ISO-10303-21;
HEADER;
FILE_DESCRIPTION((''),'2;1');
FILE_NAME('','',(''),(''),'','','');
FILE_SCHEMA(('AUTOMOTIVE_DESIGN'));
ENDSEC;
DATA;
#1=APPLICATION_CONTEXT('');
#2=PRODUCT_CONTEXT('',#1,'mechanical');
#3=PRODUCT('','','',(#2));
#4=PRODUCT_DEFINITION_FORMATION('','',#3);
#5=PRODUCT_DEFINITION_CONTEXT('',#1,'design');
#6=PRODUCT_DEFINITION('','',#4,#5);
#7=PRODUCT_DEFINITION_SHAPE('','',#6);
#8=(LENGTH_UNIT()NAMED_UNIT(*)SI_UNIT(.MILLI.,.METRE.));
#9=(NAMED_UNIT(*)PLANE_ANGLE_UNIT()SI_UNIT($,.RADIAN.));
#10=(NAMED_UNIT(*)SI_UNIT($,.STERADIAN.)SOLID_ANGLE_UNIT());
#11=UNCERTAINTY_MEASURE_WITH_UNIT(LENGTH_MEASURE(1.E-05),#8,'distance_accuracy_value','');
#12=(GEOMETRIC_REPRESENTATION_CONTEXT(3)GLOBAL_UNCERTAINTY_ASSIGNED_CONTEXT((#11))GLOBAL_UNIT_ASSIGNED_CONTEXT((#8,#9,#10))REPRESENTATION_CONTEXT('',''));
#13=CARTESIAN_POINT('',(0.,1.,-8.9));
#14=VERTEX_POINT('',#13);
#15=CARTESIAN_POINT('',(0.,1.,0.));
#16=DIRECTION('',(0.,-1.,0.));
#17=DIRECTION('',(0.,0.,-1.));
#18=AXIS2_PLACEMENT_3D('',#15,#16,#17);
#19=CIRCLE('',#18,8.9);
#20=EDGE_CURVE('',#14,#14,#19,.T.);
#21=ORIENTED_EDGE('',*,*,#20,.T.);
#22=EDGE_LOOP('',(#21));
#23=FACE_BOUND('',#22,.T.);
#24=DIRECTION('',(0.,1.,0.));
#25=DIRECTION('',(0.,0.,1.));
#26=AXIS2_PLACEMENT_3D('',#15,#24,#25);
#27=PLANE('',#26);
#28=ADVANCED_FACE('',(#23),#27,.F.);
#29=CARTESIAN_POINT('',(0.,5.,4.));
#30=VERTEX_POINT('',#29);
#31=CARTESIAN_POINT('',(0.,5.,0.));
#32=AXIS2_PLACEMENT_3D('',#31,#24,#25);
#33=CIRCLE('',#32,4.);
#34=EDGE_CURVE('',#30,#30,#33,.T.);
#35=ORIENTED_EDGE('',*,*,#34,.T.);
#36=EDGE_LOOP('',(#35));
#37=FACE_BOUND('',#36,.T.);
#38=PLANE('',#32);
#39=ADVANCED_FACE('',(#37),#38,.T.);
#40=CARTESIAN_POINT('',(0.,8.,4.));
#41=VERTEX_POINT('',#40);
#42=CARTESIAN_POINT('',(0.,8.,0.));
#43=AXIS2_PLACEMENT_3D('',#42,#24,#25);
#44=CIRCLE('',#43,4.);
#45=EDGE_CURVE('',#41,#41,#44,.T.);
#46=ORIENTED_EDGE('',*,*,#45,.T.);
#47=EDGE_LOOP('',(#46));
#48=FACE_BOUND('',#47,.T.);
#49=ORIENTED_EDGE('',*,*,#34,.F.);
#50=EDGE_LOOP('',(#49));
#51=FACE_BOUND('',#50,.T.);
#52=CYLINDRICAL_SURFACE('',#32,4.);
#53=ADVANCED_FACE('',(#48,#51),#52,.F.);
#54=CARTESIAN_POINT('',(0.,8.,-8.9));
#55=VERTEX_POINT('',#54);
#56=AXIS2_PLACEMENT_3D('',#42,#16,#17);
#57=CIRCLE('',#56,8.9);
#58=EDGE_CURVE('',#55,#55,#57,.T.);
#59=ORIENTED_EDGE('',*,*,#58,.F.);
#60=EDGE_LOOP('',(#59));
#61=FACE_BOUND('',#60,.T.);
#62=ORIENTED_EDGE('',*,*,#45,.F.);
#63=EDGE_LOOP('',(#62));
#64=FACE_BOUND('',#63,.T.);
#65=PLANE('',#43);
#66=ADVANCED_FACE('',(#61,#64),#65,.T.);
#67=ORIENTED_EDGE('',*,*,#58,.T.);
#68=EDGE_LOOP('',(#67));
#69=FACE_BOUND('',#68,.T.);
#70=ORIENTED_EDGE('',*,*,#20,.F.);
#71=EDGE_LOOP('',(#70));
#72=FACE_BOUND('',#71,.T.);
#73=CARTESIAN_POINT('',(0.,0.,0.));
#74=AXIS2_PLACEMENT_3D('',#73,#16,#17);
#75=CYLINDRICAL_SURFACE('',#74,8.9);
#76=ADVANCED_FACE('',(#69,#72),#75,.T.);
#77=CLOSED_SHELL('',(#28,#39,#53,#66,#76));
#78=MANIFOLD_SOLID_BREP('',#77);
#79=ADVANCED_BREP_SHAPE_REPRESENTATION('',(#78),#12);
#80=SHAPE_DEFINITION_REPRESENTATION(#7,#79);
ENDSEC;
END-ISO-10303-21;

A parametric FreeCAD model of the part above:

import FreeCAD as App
import Part
import Sketcher
Q = App.Units.Quantity

doc = App.newDocument("Part")
params = doc.addObject("Spreadsheet::Sheet", "Params")
for row, (alias, value) in enumerate([
    ("sketch1_height", "7 mm"),
    ("sketch1_width", "8.9 mm"),
    ("revolution_angle", "360 deg"),
    ("sketch2_diameter", "8 mm"),
    ("pocket1_length", "3 mm"),
], start=1):
    params.set(f"A{row}", alias)
    params.set(f"B{row}", "=" + value)
    params.setAlias(f"B{row}", alias)

body = doc.addObject("PartDesign::Body", "Body")

# Sketch on XY plane
sketch1 = body.newObject("Sketcher::SketchObject", "Sketch")
sketch1.AttachmentSupport = (doc.getObject("XY_Plane"), [""])
sketch1.MapMode = "FlatFace"
sketch1.addGeometry([
    Part.LineSegment(App.Vector(-9, 8, 0), App.Vector(-9, 1, 0)),
    Part.LineSegment(App.Vector(-9, 1, 0), App.Vector(0, 1, 0)),
    Part.LineSegment(App.Vector(0, 1, 0), App.Vector(0, 8, 0)),
    Part.LineSegment(App.Vector(0, 8, 0), App.Vector(-9, 8, 0)),
], False)
sketch1.addConstraint([
    Sketcher.Constraint("Coincident", 0, 2, 1, 1),
    Sketcher.Constraint("Coincident", 1, 2, 2, 1),
    Sketcher.Constraint("Coincident", 2, 2, 3, 1),
    Sketcher.Constraint("Coincident", 3, 2, 0, 1),
    Sketcher.Constraint("Vertical", 0),
    Sketcher.Constraint("Horizontal", 1),
    Sketcher.Constraint("Vertical", 2),
    Sketcher.Constraint("Horizontal", 3),
    Sketcher.Constraint("PointOnObject", 1, 2, -2),
    Sketcher.Constraint("DistanceY", 0, 2, 0, 1, Q("7 mm")),
    Sketcher.Constraint("DistanceX", 1, 1, 1, 2, Q("8.9 mm")),
    Sketcher.Constraint("DistanceY", -1, 1, 0, 2, Q("1 mm")),
])
sketch1.setExpression("Constraints[9]", "Params.sketch1_height")
sketch1.setExpression("Constraints[10]", "Params.sketch1_width")
revolution = body.newObject("PartDesign::Revolution", "Revolution")
revolution.Profile = sketch1
revolution.ReferenceAxis = (sketch1, ["V_Axis"])
revolution.setExpression("Angle", "Params.revolution_angle")

# Sketch on XZ plane
sketch2 = body.newObject("Sketcher::SketchObject", "Sketch001")
sketch2.AttachmentSupport = (doc.getObject("XZ_Plane"), [""])
sketch2.MapMode = "FlatFace"
sketch2.AttachmentOffset = App.Placement(App.Vector(0, 0, -8), App.Rotation())
sketch2.addGeometry(Part.Circle(App.Vector(0, 0, 0), App.Vector(0, 0, 1), 4), False)
sketch2.addConstraint([
    Sketcher.Constraint("Coincident", 0, 3, -1, 1),
    Sketcher.Constraint("Diameter", 0, Q("8 mm")),
])
sketch2.setExpression("Constraints[1]", "Params.sketch2_diameter")
pocket1 = body.newObject("PartDesign::Pocket", "Pocket")
pocket1.Profile = sketch2
pocket1.setExpression("Length", "Params.pocket1_length")
pocket1.Reversed = True

doc.recompute()
